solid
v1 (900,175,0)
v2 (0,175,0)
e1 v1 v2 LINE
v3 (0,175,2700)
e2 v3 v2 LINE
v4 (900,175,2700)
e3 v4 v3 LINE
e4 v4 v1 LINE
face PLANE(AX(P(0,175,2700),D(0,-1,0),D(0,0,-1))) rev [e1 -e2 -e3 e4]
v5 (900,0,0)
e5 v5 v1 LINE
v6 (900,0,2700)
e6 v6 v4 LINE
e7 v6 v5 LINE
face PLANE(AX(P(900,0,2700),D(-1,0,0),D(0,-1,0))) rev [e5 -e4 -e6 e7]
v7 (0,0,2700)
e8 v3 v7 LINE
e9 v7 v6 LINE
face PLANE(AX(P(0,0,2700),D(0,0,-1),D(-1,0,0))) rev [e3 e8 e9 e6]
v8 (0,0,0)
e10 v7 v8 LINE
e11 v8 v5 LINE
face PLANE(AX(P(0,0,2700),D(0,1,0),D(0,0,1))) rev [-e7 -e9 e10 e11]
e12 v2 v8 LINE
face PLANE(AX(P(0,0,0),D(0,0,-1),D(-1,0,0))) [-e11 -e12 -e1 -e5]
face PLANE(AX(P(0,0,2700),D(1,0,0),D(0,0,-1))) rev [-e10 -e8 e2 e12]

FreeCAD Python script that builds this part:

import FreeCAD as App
import Part
import Sketcher

V = App.Vector
Q = App.Units.Quantity

doc = App.newDocument("Part")
body = doc.addObject("PartDesign::Body", "Body")

# Sketch on XY plane
sketch1 = doc.addObject("Sketcher::SketchObject", "Sketch")
body.addObject(sketch1)
sketch1.AttachmentSupport = (doc.XY_Plane, [""])
sketch1.MapMode = "FlatFace"
sketch1.addGeometry(Part.LineSegment(V(0, 175, 0), V(0, 0, 0)), False)
sketch1.addGeometry(Part.LineSegment(V(0, 0, 0), V(900, 0, 0)), False)
sketch1.addGeometry(Part.LineSegment(V(900, 0, 0), V(900, 175, 0)), False)
sketch1.addGeometry(Part.LineSegment(V(900, 175, 0), V(0, 175, 0)), False)
sketch1.addConstraint(Sketcher.Constraint("Coincident", 0, 2, 1, 1))
sketch1.addConstraint(Sketcher.Constraint("Coincident", 1, 2, 2, 1))
sketch1.addConstraint(Sketcher.Constraint("Coincident", 2, 2, 3, 1))
sketch1.addConstraint(Sketcher.Constraint("Coincident", 3, 2, 0, 1))
sketch1.addConstraint(Sketcher.Constraint("Vertical", 0))
sketch1.addConstraint(Sketcher.Constraint("Horizontal", 1))
sketch1.addConstraint(Sketcher.Constraint("Vertical", 2))
sketch1.addConstraint(Sketcher.Constraint("Horizontal", 3))
sketch1.addConstraint(Sketcher.Constraint("Coincident", 0, 2, -1, 1))
sketch1.addConstraint(Sketcher.Constraint("DistanceX", 1, 1, 1, 2, Q("900 mm")))
sketch1.addConstraint(Sketcher.Constraint("DistanceY", 0, 2, 0, 1, Q("175 mm")))
pad1 = doc.addObject("PartDesign::Pad", "Pad")
body.addObject(pad1)
pad1.Profile = sketch1
pad1.Length = 2700

doc.recompute()
